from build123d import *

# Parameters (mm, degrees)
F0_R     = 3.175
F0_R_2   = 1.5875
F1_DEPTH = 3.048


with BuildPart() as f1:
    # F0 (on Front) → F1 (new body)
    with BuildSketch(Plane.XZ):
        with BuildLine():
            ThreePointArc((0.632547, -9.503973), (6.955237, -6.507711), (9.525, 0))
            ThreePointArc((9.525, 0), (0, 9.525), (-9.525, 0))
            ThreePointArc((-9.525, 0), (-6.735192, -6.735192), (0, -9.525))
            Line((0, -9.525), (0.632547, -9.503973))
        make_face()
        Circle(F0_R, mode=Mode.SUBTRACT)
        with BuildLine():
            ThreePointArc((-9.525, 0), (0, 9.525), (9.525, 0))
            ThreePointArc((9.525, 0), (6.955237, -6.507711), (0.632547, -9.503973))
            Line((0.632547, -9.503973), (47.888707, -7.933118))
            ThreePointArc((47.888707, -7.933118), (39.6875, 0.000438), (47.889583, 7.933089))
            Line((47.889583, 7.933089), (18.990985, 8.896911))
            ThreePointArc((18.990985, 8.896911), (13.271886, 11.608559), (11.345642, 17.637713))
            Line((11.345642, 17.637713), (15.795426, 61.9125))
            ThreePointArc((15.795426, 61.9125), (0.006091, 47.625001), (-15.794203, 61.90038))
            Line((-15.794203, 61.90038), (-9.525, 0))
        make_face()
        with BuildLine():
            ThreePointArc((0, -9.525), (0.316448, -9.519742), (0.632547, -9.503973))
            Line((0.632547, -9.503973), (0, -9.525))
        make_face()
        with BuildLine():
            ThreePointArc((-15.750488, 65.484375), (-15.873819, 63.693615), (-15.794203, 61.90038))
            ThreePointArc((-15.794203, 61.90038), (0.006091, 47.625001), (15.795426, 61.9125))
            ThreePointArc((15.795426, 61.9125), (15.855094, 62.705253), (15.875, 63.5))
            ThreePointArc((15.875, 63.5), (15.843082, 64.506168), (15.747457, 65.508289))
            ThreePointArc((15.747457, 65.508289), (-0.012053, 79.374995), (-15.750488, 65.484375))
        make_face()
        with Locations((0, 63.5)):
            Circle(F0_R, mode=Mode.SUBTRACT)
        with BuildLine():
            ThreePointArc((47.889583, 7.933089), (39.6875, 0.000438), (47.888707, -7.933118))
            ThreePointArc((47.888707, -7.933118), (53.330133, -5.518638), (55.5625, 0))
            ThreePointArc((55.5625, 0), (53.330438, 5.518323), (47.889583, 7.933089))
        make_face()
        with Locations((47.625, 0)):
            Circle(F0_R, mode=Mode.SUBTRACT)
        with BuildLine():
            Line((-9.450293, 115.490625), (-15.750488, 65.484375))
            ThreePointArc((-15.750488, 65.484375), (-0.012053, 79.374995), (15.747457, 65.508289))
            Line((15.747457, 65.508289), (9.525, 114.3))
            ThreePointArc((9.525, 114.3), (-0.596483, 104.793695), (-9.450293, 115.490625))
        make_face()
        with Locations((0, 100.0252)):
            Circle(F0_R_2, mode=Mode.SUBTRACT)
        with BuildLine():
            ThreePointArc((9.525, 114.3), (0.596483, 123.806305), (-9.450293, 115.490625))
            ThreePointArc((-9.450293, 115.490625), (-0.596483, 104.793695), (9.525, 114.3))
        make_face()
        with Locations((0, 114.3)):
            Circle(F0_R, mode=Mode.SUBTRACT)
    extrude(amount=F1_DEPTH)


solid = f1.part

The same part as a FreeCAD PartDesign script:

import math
import FreeCAD as App
import Part
import Sketcher
from FreeCAD import Vector
Q = App.Units.Quantity

doc = App.newDocument("Part")
body = doc.addObject("PartDesign::Body", "Body")

# Sketch on XZ plane
sketch1 = body.newObject("Sketcher::SketchObject", "Sketch")
sketch1.AttachmentSupport = (doc.getObject("XZ_Plane"), [""])
sketch1.MapMode = "FlatFace"
sketch1.addGeometry([
    Part.LineSegment(Vector(0.632547, -9.503973, 0), Vector(47.888707, -7.933118, 0)),  # 0
    Part.ArcOfCircle(Part.Circle(Vector(47.625001, 0, 0), Vector(0, 0, 1), 7.937499), math.radians(-88.096121), math.radians(0.000003)),  # 1
    Part.ArcOfCircle(Part.Circle(Vector(47.625001, 0.000001, 0), Vector(0, 0, 1), 7.937499), math.radians(-0.000006), math.radians(88.089796)),  # 2
    Part.LineSegment(Vector(47.889583, 7.933089, 0), Vector(18.990985, 8.896911, 0)),  # 3
    Part.ArcOfCircle(Part.Circle(Vector(19.255992, 16.842694, 0), Vector(0, 0, 1), 7.950201), math.radians(174.260837), math.radians(268.089783)),  # 4
    Part.LineSegment(Vector(11.345642, 17.637713, 0), Vector(15.795426, 61.9125, 0)),  # 5
    Part.ArcOfCircle(Part.Circle(Vector(-0.000084, 63.5, 0), Vector(0, 0, 1), 15.875084), math.radians(-5.73914), math.radians(0)),  # 6
    Part.ArcOfCircle(Part.Circle(Vector(-0.000071, 63.499996, 0), Vector(0, 0, 1), 15.875071), math.radians(0.000015), math.radians(7.267739)),  # 7
    Part.LineSegment(Vector(15.747457, 65.508289, 0), Vector(9.525, 114.3, 0)),  # 8
    Part.ArcOfCircle(Part.Circle(Vector(0, 114.3, 0), Vector(0, 0, 1), 9.525), math.radians(0), math.radians(172.819245)),  # 9
    Part.LineSegment(Vector(-9.450293, 115.490625, 0), Vector(-15.750488, 65.484375, 0)),  # 10
    Part.ArcOfCircle(Part.Circle(Vector(0.00004, 63.499997, 0), Vector(0, 0, 1), 15.875039), math.radians(172.819252), math.radians(185.783112)),  # 11
    Part.LineSegment(Vector(-15.794203, 61.90038, 0), Vector(-9.525, 0, 0)),  # 12
    Part.ArcOfCircle(Part.Circle(Vector(0, 0, 0), Vector(0, 0, 1), 9.525), math.radians(-179.999998), math.radians(-90.000002)),  # 13
    Part.ArcOfCircle(Part.Circle(Vector(0.000012, -0.000507, 0), Vector(0, 0, 1), 9.524493), math.radians(-90.000071), math.radians(-86.192102)),  # 14
    Part.Circle(Vector(0, 0, 0), Vector(0, 0, 1), 3.175),  # 15
    Part.Circle(Vector(47.625, 0, 0), Vector(0, 0, 1), 3.175),  # 16
    Part.Circle(Vector(0, 63.5, 0), Vector(0, 0, 1), 3.175),  # 17
    Part.Circle(Vector(0, 100.0252, 0), Vector(0, 0, 1), 1.5875),  # 18
    Part.Circle(Vector(0, 114.3, 0), Vector(0, 0, 1), 3.175),  # 19
], False)
sketch1.addConstraint([
    Sketcher.Constraint("Coincident", 0, 2, 1, 1),
    Sketcher.Constraint("Coincident", 1, 2, 2, 1),
    Sketcher.Constraint("Coincident", 2, 2, 3, 1),
    Sketcher.Constraint("Coincident", 3, 2, 4, 2),
    Sketcher.Constraint("Coincident", 4, 1, 5, 1),
    Sketcher.Constraint("Coincident", 5, 2, 6, 1),
    Sketcher.Constraint("Coincident", 6, 2, 7, 1),
    Sketcher.Constraint("Coincident", 7, 2, 8, 1),
    Sketcher.Constraint("Coincident", 8, 2, 9, 1),
    Sketcher.Constraint("Coincident", 9, 2, 10, 1),
    Sketcher.Constraint("Coincident", 10, 2, 11, 1),
    Sketcher.Constraint("Coincident", 11, 2, 12, 1),
    Sketcher.Constraint("Coincident", 12, 2, 13, 1),
    Sketcher.Constraint("Coincident", 13, 2, 14, 1),
    Sketcher.Constraint("Coincident", 14, 2, 0, 1),
    Sketcher.Constraint("Coincident", 13, 3, -1, 1),
    Sketcher.Constraint("Coincident", 15, 3, -1, 1),
    Sketcher.Constraint("Coincident", 2, 3, 1, 3),
    Sketcher.Constraint("Coincident", 16, 3, 1, 3),
    Sketcher.Constraint("Coincident", 19, 3, 9, 3),
    Sketcher.Constraint("PointOnObject", 1, 3, -1),
    Sketcher.Constraint("PointOnObject", 9, 3, -2),
    Sketcher.Constraint("PointOnObject", 17, 3, -2),
    Sketcher.Constraint("PointOnObject", 18, 3, -2),
    Sketcher.Constraint("PointOnObject", 1, 2, -1),
    Sketcher.Constraint("PointOnObject", 12, 2, -1),
    Sketcher.Constraint("PointOnObject", 13, 2, -2),
    Sketcher.Constraint("Diameter", 15, Q("0.25 in")),
    Sketcher.Constraint("Diameter", 16, Q("0.25 in")),
    Sketcher.Constraint("Diameter", 17, Q("0.25 in")),
    Sketcher.Constraint("Diameter", 19, Q("0.25 in")),
    Sketcher.Constraint("Diameter", 18, Q("0.125 in")),
    Sketcher.Constraint("Radius", 1, Q("0.3125 in")),
    Sketcher.Constraint("Radius", 4, Q("0.313 in")),
    Sketcher.Constraint("Radius", 9, Q("0.375 in")),
    Sketcher.Constraint("Radius", 13, Q("0.375 in")),
    Sketcher.Constraint("DistanceY", 6, 3, 9, 3, Q("2 in")),
    Sketcher.Constraint("DistanceY", 7, 3, 9, 3, Q("2.0000002 in")),
    Sketcher.Constraint("DistanceY", 11, 3, 9, 3, Q("2.0000001 in")),
    Sketcher.Constraint("DistanceY", 17, 3, 9, 3, Q("2 in")),
    Sketcher.Constraint("DistanceY", 6, 2, 8, 2, Q("2 in")),
    Sketcher.Constraint("DistanceY", -1, 1, 6, 3, Q("2.5 in")),
    Sketcher.Constraint("DistanceY", -1, 1, 6, 2, Q("2.5 in")),
    Sketcher.Constraint("DistanceX", 8, 2, 6, 2, Q("0.25 in")),
    Sketcher.Constraint("DistanceX", -1, 1, 1, 3, Q("1.875 in")),
    Sketcher.Constraint("DistanceY", -1, 1, 18, 3, Q("3.938 in")),
    Sketcher.Constraint("DistanceY", -1, 1, 5, 2, Q("2.4375 in")),
    Sketcher.Constraint("DistanceY", -1, 1, 9, 2, Q("4.546875 in")),
    Sketcher.Constraint("DistanceY", -1, 1, 10, 2, Q("2.578125 in")),
    Sketcher.Constraint("Radius", 7, 15.875071),
    Sketcher.Constraint("Radius", 11, 15.875039),
    Sketcher.Constraint("Radius", 6, 15.875084),
    Sketcher.Constraint("Radius", 14, 9.524493),
    Sketcher.Constraint("DistanceY", 4, 3, 4, 1, Q("0.0313 in")),
    Sketcher.Constraint("DistanceY", 4, 3, 7, 3, 46.657302),
    Sketcher.Constraint("DistanceX", 3, 2, 2, 2, 28.898598),
    Sketcher.Constraint("Distance", 0, 47.282261),
    Sketcher.Constraint("Distance", 8, 49.186889),
    Sketcher.Constraint("Distance", 12, 62.217039),
    Sketcher.Constraint("DistanceY", 0, 2, -1, 1, 7.933118),
    Sketcher.Constraint("DistanceY", -1, 1, 2, 2, 7.933089),
    Sketcher.Constraint("DistanceY", -1, 1, 3, 2, 8.896911),
    Sketcher.Constraint("DistanceX", 10, 2, -1, 1, 15.750488),
    Sketcher.Constraint("DistanceX", 14, 3, 4, 3, 19.25598),
])
pad1 = body.newObject("PartDesign::Pad", "Pad")
pad1.Profile = sketch1
pad1.Length = Q("0.12 in")

doc.recompute()
